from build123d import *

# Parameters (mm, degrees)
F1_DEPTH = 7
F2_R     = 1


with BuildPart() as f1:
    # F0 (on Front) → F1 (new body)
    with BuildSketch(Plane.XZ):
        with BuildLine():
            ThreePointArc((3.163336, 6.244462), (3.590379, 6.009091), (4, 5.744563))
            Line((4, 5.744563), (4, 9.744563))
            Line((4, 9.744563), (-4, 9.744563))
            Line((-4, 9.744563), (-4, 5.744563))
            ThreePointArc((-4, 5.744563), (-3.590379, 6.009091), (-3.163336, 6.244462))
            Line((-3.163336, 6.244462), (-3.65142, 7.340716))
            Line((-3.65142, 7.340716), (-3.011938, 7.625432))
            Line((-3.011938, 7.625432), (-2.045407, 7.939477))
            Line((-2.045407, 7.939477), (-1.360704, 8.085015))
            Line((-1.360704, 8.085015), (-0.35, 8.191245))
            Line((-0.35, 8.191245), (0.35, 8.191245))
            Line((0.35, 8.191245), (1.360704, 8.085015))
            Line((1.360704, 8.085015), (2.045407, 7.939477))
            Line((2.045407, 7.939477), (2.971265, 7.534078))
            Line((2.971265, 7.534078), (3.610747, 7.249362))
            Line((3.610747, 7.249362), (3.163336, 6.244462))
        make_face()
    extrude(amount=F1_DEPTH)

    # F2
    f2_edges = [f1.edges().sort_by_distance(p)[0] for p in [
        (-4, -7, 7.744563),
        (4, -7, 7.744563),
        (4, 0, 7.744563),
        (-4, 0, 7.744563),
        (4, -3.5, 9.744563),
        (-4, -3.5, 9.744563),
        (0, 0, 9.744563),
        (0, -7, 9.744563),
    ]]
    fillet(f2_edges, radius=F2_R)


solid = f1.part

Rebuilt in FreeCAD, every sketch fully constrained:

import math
import FreeCAD as App
import Part
import Sketcher

V = App.Vector
Q = App.Units.Quantity


def edges_at(feature, points):
    """Names of the edges that pass closest to the given points."""
    edges = feature.Shape.Edges
    near = lambda p: min(range(len(edges)), key=lambda i: edges[i].distToShape(Part.Vertex(*p))[0])
    return sorted({f"Edge{near(p) + 1}" for p in points})

doc = App.newDocument("Part")
body = doc.addObject("PartDesign::Body", "Body")

# Sketch on XZ plane
sketch1 = doc.addObject("Sketcher::SketchObject", "Sketch")
body.addObject(sketch1)
sketch1.AttachmentSupport = (doc.XZ_Plane, [""])
sketch1.MapMode = "FlatFace"
sketch1.addGeometry(Part.ArcOfCircle(Part.Circle(V(-0.000092, -0.000157, 0), V(0, 0, 1), 7.000182), math.radians(55.150216), math.radians(63.13393)), False)
sketch1.addGeometry(Part.LineSegment(V(4, 5.744563, 0), V(4, 9.744563, 0)), False)
sketch1.addGeometry(Part.LineSegment(V(4, 9.744563, 0), V(-4, 9.744563, 0)), False)
sketch1.addGeometry(Part.LineSegment(V(-4, 9.744563, 0), V(-4, 5.744563, 0)), False)
sketch1.addGeometry(Part.ArcOfCircle(Part.Circle(V(0.000092, -0.000157, 0), V(0, 0, 1), 7.000182), math.radians(116.86607), math.radians(124.849784)), False)
sketch1.addGeometry(Part.LineSegment(V(-3.163336, 6.244462, 0), V(-3.65142, 7.340716, 0)), False)
sketch1.addGeometry(Part.LineSegment(V(-3.65142, 7.340716, 0), V(-3.011938, 7.625432, 0)), False)
sketch1.addGeometry(Part.LineSegment(V(-3.011938, 7.625432, 0), V(-2.045407, 7.939477, 0)), False)
sketch1.addGeometry(Part.LineSegment(V(-2.045407, 7.939477, 0), V(-1.360704, 8.085015, 0)), False)
sketch1.addGeometry(Part.LineSegment(V(-1.360704, 8.085015, 0), V(-0.35, 8.191245, 0)), False)
sketch1.addGeometry(Part.LineSegment(V(-0.35, 8.191245, 0), V(0.35, 8.191245, 0)), False)
sketch1.addGeometry(Part.LineSegment(V(0.35, 8.191245, 0), V(1.360704, 8.085015, 0)), False)
sketch1.addGeometry(Part.LineSegment(V(1.360704, 8.085015, 0), V(2.045407, 7.939477, 0)), False)
sketch1.addGeometry(Part.LineSegment(V(2.045407, 7.939477, 0), V(2.971265, 7.534078, 0)), False)
sketch1.addGeometry(Part.LineSegment(V(2.971265, 7.534078, 0), V(3.610747, 7.249362, 0)), False)
sketch1.addGeometry(Part.LineSegment(V(3.610747, 7.249362, 0), V(3.163336, 6.244462, 0)), False)
sketch1.addConstraint(Sketcher.Constraint("Coincident", 0, 1, 1, 1))
sketch1.addConstraint(Sketcher.Constraint("Coincident", 1, 2, 2, 1))
sketch1.addConstraint(Sketcher.Constraint("Coincident", 2, 2, 3, 1))
sketch1.addConstraint(Sketcher.Constraint("Coincident", 3, 2, 4, 2))
sketch1.addConstraint(Sketcher.Constraint("Coincident", 4, 1, 5, 1))
sketch1.addConstraint(Sketcher.Constraint("Coincident", 5, 2, 6, 1))
sketch1.addConstraint(Sketcher.Constraint("Coincident", 6, 2, 7, 1))
sketch1.addConstraint(Sketcher.Constraint("Coincident", 7, 2, 8, 1))
sketch1.addConstraint(Sketcher.Constraint("Coincident", 8, 2, 9, 1))
sketch1.addConstraint(Sketcher.Constraint("Coincident", 9, 2, 10, 1))
sketch1.addConstraint(Sketcher.Constraint("Coincident", 10, 2, 11, 1))
sketch1.addConstraint(Sketcher.Constraint("Coincident", 11, 2, 12, 1))
sketch1.addConstraint(Sketcher.Constraint("Coincident", 12, 2, 13, 1))
sketch1.addConstraint(Sketcher.Constraint("Coincident", 13, 2, 14, 1))
sketch1.addConstraint(Sketcher.Constraint("Coincident", 14, 2, 15, 1))
sketch1.addConstraint(Sketcher.Constraint("Coincident", 15, 2, 0, 2))
sketch1.addConstraint(Sketcher.Constraint("Vertical", 1))
sketch1.addConstraint(Sketcher.Constraint("Horizontal", 2))
sketch1.addConstraint(Sketcher.Constraint("Vertical", 3))
sketch1.addConstraint(Sketcher.Constraint("Horizontal", 10))
sketch1.addConstraint(Sketcher.Constraint("Equal", 0, 4))
sketch1.addConstraint(Sketcher.Constraint("Symmetric", 0, 3, 4, 3, -2))
sketch1.addConstraint(Sketcher.Constraint("Symmetric", 8, 2, 11, 2, -2))
sketch1.addConstraint(Sketcher.Constraint("Symmetric", 7, 2, 12, 2, -2))
sketch1.addConstraint(Sketcher.Constraint("Perpendicular", 5, 6))
sketch1.addConstraint(Sketcher.Constraint("Perpendicular", 14, 15))
sketch1.addConstraint(Sketcher.Constraint("Horizontal", 0, 1, 3, 2))
sketch1.addConstraint(Sketcher.Constraint("Horizontal", 4, 1, 15, 2))
sketch1.addConstraint(Sketcher.Constraint("Equal", 6, 8))
sketch1.addConstraint(Sketcher.Constraint("Equal", 7, 9))
sketch1.addConstraint(Sketcher.Constraint("Equal", 9, 11))
sketch1.addConstraint(Sketcher.Constraint("Equal", 12, 14))
sketch1.addConstraint(Sketcher.Constraint("DistanceX", 2, 2, 2, 1, Q("8 mm")))
sketch1.addConstraint(Sketcher.Constraint("DistanceY", 1, 1, 1, 2, Q("4 mm")))
sketch1.addConstraint(Sketcher.Constraint("Angle", 5, Q("114.000012 deg")))
sketch1.addConstraint(Sketcher.Constraint("Angle", 7, Q("18.000002 deg")))
sketch1.addConstraint(Sketcher.Constraint("Angle", 8, Q("11.999991 deg")))
sketch1.addConstraint(Sketcher.Constraint("DistanceX", 10, 1, 10, 2, Q("0.7 mm")))
sketch1.addConstraint(Sketcher.Constraint("Distance", 5, Q("1.2 mm")))
sketch1.addConstraint(Sketcher.Constraint("Distance", 6, Q("0.7 mm")))
sketch1.addConstraint(Sketcher.Constraint("Distance", 15, Q("1.1 mm")))
sketch1.addConstraint(Sketcher.Constraint("Radius", 0, Q("7.000182 mm")))
sketch1.addConstraint(Sketcher.Constraint("DistanceY", 3, 2, 4, 1, Q("0.499899 mm")))
sketch1.addConstraint(Sketcher.Constraint("DistanceY", 5, 2, 8, 2, Q("0.744299 mm")))
sketch1.addConstraint(Sketcher.Constraint("DistanceY", 13, 2, 12, 2, Q("0.405399 mm")))
sketch1.addConstraint(Sketcher.Constraint("DistanceY", -1, 1, 4, 1, Q("6.244462 mm")))
sketch1.addConstraint(Sketcher.Constraint("DistanceX", 5, 2, -1, 1, Q("3.65142 mm")))
pad1 = doc.addObject("PartDesign::Pad", "Pad")
body.addObject(pad1)
pad1.Profile = sketch1
pad1.Length = 7
doc.recompute()

fillet = doc.addObject("PartDesign::Fillet", "Fillet")
body.addObject(fillet)
fillet.Base = (pad1, edges_at(pad1, [
    (-4, -7, 7.745),
    (4, -7, 7.745),
    (4, 0, 7.745),
    (-4, 0, 7.745),
    (4, -3.5, 9.745),
    (-4, -3.5, 9.745),
    (0, 0, 9.745),
    (0, -7, 9.745),
]))
fillet.Radius = 1

doc.recompute()
